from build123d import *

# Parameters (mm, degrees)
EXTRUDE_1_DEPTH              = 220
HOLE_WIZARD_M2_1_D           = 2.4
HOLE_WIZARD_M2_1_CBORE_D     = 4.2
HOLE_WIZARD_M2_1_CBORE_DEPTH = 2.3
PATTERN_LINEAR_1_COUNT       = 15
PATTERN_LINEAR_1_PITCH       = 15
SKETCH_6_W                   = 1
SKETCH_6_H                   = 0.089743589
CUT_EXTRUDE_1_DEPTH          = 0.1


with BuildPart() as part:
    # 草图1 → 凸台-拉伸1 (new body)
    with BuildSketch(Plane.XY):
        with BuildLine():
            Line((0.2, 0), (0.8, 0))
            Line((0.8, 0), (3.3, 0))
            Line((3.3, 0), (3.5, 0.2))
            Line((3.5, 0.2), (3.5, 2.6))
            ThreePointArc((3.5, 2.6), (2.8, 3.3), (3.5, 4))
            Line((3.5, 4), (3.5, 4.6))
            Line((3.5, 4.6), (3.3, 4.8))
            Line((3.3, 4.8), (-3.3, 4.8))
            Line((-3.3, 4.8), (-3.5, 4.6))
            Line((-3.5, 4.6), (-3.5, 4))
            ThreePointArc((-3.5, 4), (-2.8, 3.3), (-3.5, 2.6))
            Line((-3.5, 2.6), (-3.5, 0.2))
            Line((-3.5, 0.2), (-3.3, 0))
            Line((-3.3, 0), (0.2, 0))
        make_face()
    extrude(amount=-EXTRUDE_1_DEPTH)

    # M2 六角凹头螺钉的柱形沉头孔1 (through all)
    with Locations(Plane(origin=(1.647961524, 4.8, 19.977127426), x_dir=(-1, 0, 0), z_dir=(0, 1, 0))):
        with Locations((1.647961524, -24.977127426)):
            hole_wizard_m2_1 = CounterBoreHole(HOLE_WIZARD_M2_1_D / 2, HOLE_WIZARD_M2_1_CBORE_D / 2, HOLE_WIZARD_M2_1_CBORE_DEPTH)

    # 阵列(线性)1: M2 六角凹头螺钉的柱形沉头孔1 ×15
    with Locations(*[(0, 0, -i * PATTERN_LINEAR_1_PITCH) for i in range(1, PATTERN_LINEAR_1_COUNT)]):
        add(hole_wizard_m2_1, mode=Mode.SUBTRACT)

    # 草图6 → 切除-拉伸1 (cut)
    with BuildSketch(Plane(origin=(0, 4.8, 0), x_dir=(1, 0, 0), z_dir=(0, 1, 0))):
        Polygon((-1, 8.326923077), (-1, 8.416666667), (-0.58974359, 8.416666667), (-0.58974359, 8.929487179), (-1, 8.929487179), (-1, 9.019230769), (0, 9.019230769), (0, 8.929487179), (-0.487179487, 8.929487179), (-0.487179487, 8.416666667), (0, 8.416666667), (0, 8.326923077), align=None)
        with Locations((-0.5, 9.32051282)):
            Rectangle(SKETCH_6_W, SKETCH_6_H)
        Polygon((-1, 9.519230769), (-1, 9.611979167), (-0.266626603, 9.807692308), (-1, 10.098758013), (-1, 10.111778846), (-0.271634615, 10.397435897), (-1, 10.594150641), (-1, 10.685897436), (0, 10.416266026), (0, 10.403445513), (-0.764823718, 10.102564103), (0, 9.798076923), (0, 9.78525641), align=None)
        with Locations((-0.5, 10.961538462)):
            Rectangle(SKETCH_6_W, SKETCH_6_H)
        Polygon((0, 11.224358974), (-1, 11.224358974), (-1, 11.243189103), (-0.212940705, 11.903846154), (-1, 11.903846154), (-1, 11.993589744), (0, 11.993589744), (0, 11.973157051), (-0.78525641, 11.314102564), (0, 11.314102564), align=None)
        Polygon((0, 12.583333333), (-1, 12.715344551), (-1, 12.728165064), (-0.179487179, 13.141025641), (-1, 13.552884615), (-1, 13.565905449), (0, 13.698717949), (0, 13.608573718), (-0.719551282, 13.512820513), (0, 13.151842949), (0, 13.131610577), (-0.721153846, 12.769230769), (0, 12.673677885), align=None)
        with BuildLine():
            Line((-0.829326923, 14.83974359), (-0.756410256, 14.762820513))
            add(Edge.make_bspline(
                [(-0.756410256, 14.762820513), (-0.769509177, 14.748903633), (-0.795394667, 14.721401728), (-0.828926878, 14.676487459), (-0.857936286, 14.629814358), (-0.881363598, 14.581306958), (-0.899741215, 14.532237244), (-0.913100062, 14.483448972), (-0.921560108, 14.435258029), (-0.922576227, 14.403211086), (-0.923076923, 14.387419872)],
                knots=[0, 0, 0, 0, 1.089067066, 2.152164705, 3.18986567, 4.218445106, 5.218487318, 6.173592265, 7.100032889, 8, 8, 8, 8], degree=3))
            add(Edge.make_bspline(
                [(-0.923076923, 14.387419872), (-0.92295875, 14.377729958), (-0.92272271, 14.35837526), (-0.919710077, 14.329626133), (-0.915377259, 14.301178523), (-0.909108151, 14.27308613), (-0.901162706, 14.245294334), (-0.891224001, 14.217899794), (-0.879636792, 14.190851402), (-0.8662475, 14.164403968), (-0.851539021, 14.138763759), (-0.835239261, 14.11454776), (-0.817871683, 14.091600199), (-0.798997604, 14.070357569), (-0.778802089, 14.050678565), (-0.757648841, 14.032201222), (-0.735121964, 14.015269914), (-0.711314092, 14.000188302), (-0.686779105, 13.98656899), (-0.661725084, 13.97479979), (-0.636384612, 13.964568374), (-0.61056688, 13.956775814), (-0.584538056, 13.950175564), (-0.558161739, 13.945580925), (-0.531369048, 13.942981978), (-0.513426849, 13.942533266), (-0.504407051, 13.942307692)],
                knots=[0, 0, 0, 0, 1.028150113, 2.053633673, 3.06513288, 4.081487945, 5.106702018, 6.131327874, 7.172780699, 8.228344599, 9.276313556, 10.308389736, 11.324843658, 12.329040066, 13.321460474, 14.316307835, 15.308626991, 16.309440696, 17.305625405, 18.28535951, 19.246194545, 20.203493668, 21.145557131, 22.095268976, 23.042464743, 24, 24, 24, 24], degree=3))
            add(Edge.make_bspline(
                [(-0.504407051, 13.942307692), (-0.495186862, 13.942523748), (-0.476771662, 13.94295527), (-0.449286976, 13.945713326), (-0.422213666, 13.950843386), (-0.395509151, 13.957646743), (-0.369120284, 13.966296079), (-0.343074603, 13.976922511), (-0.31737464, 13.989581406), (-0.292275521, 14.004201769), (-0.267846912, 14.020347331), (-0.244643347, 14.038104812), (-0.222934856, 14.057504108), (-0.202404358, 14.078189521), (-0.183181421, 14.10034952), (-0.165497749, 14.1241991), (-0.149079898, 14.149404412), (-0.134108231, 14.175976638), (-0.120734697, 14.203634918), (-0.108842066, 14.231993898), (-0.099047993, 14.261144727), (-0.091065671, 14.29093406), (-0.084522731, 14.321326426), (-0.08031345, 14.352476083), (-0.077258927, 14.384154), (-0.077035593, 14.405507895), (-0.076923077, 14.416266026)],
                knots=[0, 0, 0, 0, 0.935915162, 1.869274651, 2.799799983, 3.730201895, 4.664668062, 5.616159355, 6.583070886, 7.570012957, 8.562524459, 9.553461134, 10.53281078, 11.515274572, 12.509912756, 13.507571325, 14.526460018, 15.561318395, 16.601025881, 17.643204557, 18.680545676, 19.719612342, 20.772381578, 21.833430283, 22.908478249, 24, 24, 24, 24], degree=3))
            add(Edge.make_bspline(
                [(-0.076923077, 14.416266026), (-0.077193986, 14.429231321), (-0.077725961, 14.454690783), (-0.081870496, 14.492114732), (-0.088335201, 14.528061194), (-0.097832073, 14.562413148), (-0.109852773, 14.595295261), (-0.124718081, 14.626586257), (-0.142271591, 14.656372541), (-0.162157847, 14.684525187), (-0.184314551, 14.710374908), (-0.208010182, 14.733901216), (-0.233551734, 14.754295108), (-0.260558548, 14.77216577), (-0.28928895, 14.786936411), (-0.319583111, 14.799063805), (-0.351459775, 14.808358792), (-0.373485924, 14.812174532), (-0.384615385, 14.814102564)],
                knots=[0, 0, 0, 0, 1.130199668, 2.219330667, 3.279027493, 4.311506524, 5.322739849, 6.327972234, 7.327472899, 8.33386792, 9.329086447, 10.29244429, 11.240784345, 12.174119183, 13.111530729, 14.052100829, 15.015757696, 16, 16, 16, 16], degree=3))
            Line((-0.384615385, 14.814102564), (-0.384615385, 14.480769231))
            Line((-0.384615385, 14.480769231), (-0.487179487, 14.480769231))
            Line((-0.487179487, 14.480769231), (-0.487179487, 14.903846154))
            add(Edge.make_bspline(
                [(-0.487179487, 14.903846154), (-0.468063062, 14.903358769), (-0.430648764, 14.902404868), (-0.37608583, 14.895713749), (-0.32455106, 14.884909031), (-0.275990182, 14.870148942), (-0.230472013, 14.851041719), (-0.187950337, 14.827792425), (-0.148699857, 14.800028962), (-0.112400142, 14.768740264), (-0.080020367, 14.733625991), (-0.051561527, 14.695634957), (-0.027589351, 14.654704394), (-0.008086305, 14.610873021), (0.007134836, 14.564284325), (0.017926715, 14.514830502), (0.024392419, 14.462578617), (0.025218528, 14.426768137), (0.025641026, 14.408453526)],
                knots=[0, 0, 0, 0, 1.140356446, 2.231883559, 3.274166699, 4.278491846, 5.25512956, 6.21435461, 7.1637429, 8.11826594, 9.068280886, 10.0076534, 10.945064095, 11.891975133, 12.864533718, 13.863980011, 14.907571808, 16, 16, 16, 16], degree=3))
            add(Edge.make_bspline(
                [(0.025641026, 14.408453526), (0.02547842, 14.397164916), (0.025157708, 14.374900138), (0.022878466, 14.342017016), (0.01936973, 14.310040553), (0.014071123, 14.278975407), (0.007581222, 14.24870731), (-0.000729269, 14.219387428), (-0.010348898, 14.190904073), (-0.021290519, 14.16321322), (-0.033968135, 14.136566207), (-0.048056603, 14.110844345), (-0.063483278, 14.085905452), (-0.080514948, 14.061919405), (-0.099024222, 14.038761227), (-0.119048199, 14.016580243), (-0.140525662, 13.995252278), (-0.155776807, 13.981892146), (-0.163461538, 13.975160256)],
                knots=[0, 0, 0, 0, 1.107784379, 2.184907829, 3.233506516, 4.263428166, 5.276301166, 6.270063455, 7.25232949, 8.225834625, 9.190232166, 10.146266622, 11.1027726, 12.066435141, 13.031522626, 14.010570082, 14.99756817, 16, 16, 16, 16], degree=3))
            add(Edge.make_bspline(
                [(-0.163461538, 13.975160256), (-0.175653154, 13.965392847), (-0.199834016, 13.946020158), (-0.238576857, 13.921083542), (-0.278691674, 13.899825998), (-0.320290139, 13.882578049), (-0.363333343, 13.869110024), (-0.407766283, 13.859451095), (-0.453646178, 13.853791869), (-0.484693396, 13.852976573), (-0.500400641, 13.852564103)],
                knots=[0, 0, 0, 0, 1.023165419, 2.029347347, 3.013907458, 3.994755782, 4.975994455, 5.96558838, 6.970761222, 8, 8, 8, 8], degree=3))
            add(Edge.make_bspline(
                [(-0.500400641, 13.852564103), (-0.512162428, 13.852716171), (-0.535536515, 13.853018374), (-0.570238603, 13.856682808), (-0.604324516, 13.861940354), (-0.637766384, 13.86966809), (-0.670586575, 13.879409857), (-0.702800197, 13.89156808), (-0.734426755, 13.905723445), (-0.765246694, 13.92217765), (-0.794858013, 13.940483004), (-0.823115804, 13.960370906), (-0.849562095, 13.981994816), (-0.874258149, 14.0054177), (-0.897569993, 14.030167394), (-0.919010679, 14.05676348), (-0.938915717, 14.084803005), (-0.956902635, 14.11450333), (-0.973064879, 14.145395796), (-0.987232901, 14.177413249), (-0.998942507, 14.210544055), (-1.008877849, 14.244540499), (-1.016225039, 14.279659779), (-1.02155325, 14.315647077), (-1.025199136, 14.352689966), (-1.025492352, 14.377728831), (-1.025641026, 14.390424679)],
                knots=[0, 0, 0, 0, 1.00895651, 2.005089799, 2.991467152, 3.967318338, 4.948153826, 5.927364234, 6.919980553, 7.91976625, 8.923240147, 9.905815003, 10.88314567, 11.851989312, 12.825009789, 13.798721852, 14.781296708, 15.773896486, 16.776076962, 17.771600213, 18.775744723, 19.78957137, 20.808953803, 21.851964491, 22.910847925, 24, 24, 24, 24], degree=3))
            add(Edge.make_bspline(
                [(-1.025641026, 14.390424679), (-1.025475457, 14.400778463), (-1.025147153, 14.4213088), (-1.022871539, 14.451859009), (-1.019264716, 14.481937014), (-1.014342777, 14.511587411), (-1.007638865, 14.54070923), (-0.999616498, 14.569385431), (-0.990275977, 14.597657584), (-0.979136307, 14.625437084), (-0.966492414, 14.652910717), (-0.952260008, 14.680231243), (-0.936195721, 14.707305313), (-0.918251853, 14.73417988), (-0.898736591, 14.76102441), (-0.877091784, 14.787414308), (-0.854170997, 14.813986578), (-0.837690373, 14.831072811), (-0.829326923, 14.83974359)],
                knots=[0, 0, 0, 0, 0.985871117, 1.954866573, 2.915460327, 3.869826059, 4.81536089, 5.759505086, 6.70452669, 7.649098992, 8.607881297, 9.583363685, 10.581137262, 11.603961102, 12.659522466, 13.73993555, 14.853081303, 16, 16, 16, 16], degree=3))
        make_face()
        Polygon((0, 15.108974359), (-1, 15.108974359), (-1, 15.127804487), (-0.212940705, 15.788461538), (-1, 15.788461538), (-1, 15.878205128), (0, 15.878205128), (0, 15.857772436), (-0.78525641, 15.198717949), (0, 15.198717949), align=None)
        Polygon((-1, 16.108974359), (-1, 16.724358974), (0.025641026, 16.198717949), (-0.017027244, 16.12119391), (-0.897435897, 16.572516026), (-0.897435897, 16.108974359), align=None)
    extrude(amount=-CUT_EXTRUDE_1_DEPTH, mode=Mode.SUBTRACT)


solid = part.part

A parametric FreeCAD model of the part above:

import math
import FreeCAD as App
import Part
import Sketcher
from FreeCAD import Vector
Q = App.Units.Quantity


def add_polygon(sketch, points):
    """Adds a closed chain of lines whose ends are joined by coincident constraints."""
    first, n = sketch.GeometryCount, len(points)
    for a, b in zip(points, points[1:] + points[:1]):
        sketch.addGeometry(Part.LineSegment(App.Vector(*a, 0), App.Vector(*b, 0)), False)
    for i in range(n):
        sketch.addConstraint(Sketcher.Constraint("Coincident", first + i, 2, first + (i + 1) % n, 1))

doc = App.newDocument("Part")
body = doc.addObject("PartDesign::Body", "Body")

# Sketch on XY plane
sketch1 = body.newObject("Sketcher::SketchObject", "Sketch")
sketch1.AttachmentSupport = (doc.getObject("XY_Plane"), [""])
sketch1.MapMode = "FlatFace"
sketch1.addGeometry([
    Part.LineSegment(Vector(3.3, 0, 0), Vector(3.5, 0.2, 0)),  # 0
    Part.LineSegment(Vector(3.5, 0.2, 0), Vector(3.5, 2.6, 0)),  # 1
    Part.ArcOfCircle(Part.Circle(Vector(3.5, 3.3, 0), Vector(0, 0, 1), 0.7), math.radians(90), math.radians(270)),  # 2
    Part.LineSegment(Vector(3.5, 4, 0), Vector(3.5, 4.6, 0)),  # 3
    Part.LineSegment(Vector(3.5, 4.6, 0), Vector(3.3, 4.8, 0)),  # 4
    Part.LineSegment(Vector(3.3, 4.8, 0), Vector(-3.3, 4.8, 0)),  # 5
    Part.LineSegment(Vector(-3.3, 4.8, 0), Vector(-3.5, 4.6, 0)),  # 6
    Part.LineSegment(Vector(-3.5, 4.6, 0), Vector(-3.5, 4, 0)),  # 7
    Part.ArcOfCircle(Part.Circle(Vector(-3.5, 3.3, 0), Vector(0, 0, 1), 0.7), math.radians(-90), math.radians(90)),  # 8
    Part.LineSegment(Vector(-3.5, 2.6, 0), Vector(-3.5, 0.2, 0)),  # 9
    Part.LineSegment(Vector(-3.5, 0.2, 0), Vector(-3.3, 0, 0)),  # 10
    Part.LineSegment(Vector(-3.3, 0, 0), Vector(3.3, 0, 0)),  # 11
], False)
sketch1.addConstraint([
    Sketcher.Constraint("Coincident", 0, 2, 1, 1),
    Sketcher.Constraint("Coincident", 1, 2, 2, 2),
    Sketcher.Constraint("Coincident", 2, 1, 3, 1),
    Sketcher.Constraint("Coincident", 3, 2, 4, 1),
    Sketcher.Constraint("Coincident", 4, 2, 5, 1),
    Sketcher.Constraint("Coincident", 5, 2, 6, 1),
    Sketcher.Constraint("Coincident", 6, 2, 7, 1),
    Sketcher.Constraint("Coincident", 7, 2, 8, 2),
    Sketcher.Constraint("Coincident", 8, 1, 9, 1),
    Sketcher.Constraint("Coincident", 9, 2, 10, 1),
    Sketcher.Constraint("Coincident", 10, 2, 11, 1),
    Sketcher.Constraint("Coincident", 11, 2, 0, 1),
    Sketcher.Constraint("Vertical", 1),
    Sketcher.Constraint("Vertical", 3),
    Sketcher.Constraint("Horizontal", 5),
    Sketcher.Constraint("Vertical", 7),
    Sketcher.Constraint("Vertical", 9),
    Sketcher.Constraint("Horizontal", 11),
    Sketcher.Constraint("Equal", 2, 8),
    Sketcher.Constraint("Symmetric", 10, 2, 11, 2, -1, 1),
    Sketcher.Constraint("Symmetric", 2, 3, 8, 3, -2),
    Sketcher.Constraint("Symmetric", 3, 2, 6, 2, -2),
    Sketcher.Constraint("Symmetric", 0, 2, 9, 2, -2),
    Sketcher.Constraint("Perpendicular", 0, 4),
    Sketcher.Constraint("Perpendicular", 4, 6),
    Sketcher.Constraint("Perpendicular", 6, 10),
    Sketcher.Constraint("Vertical", 2, 3, 0, 2),
    Sketcher.Constraint("Vertical", 1, 2, 2, 1),
    Sketcher.Constraint("Vertical", 5, 2, 10, 2),
    Sketcher.Constraint("Radius", 2, Q("0.7 mm")),
    Sketcher.Constraint("DistanceX", 5, 2, 5, 1, Q("6.6 mm")),
    Sketcher.Constraint("DistanceY", 1, 1, 1, 2, Q("2.4 mm")),
    Sketcher.Constraint("DistanceY", 3, 1, 3, 2, Q("0.6 mm")),
    Sketcher.Constraint("DistanceY", -1, 1, 2, 1, Q("4 mm")),
])
pad1 = body.newObject("PartDesign::Pad", "Pad")
pad1.Profile = sketch1
pad1.Length = 220
pad1.Reversed = True

# Sketch on XZ plane
sketch2 = body.newObject("Sketcher::SketchObject", "Sketch001")
sketch2.AttachmentSupport = (doc.getObject("XZ_Plane"), [""])
sketch2.MapMode = "FlatFace"
sketch2.AttachmentOffset = App.Placement(Vector(0, 0, -4.8), App.Rotation())
sketch2.addGeometry(Part.Circle(Vector(0, -5, 0), Vector(0, 0, 1), 1.2), False)
sketch2.addConstraint([
    Sketcher.Constraint("PointOnObject", 0, 3, -2),
    Sketcher.Constraint("Diameter", 0, Q("2.4 mm")),
    Sketcher.Constraint("DistanceY", 0, 3, -1, 1, Q("5 mm")),
])
doc.recompute()
hole = body.newObject("PartDesign::Hole", "Hole")
hole.Profile = sketch2
hole.ThreadType = "None"
hole.Diameter = 2.4
hole.DepthType = "ThroughAll"
hole.HoleCutType = "Counterbore"
hole.HoleCutDiameter = 4.2
hole.HoleCutDepth = 2.3
hole.Reversed = True
doc.recompute()

linearpattern = body.newObject("PartDesign::LinearPattern", "LinearPattern")
linearpattern.Originals = [hole]
linearpattern.Direction = (doc.getObject("Z_Axis"), [""])
linearpattern.Mode = "offset"
linearpattern.Offset = 15
linearpattern.Occurrences = 15
linearpattern.Reversed = True
body.Tip = linearpattern

# Sketch on XZ plane
sketch3 = body.newObject("Sketcher::SketchObject", "Sketch002")
sketch3.AttachmentSupport = (doc.getObject("XZ_Plane"), [""])
sketch3.MapMode = "FlatFace"
sketch3.AttachmentOffset = App.Placement(Vector(0, 0, -4.8), App.Rotation())
add_polygon(sketch3, [(-1, -8.416667), (-1, -8.326923), (0, -8.326923), (0, -8.416667), (-0.487179, -8.416667), (-0.487179, -8.929487), (0, -8.929487), (0, -9.019231), (-1, -9.019231), (-1, -8.929487), (-0.589744, -8.929487), (-0.589744, -8.416667)])  # lines 0-11
add_polygon(sketch3, [(-1, -9.365385), (-1, -9.275641), (0, -9.275641), (0, -9.365385)])  # lines 12-15
add_polygon(sketch3, [(-1, -9.611979), (-1, -9.519231), (0, -9.785256), (0, -9.798077), (-0.764824, -10.102564), (0, -10.403446), (0, -10.416266), (-1, -10.685897), (-1, -10.594151), (-0.271635, -10.397436), (-1, -10.111779), (-1, -10.098758), (-0.266627, -9.807692)])  # lines 16-28
add_polygon(sketch3, [(-1, -11.00641), (-1, -10.916667), (0, -10.916667), (0, -11.00641)])  # lines 29-32
add_polygon(sketch3, [(-1, -11.224359), (0, -11.224359), (0, -11.314103), (-0.785256, -11.314103), (0, -11.973157), (0, -11.99359), (-1, -11.99359), (-1, -11.903846), (-0.212941, -11.903846), (-1, -11.243189)])  # lines 33-42
add_polygon(sketch3, [(-1, -12.715345), (0, -12.583333), (0, -12.673678), (-0.721154, -12.769231), (0, -13.131611), (0, -13.151843), (-0.719551, -13.512821), (0, -13.608574), (0, -13.698718), (-1, -13.565905), (-1, -13.552885), (-0.179487, -13.141026), (-1, -12.728165)])  # lines 43-55
sketch3.addGeometry(Part.LineSegment(Vector(-0.75641, -14.762821, 0), Vector(-0.829327, -14.839744, 0)), False)  # 56
sketch3.addGeometry(Part.BSplineCurve([Vector(-1.025641, -14.390425, 0), Vector(-1.025475, -14.400778, 0), Vector(-1.025147, -14.421309, 0), Vector(-1.022872, -14.451859, 0), Vector(-1.019265, -14.481937, 0), Vector(-1.014343, -14.511587, 0), Vector(-1.007639, -14.540709, 0), Vector(-0.999616, -14.569385, 0), Vector(-0.990276, -14.597658, 0), Vector(-0.979136, -14.625437, 0), Vector(-0.966492, -14.652911, 0), Vector(-0.95226, -14.680231, 0), Vector(-0.936196, -14.707305, 0), Vector(-0.918252, -14.73418, 0), Vector(-0.898737, -14.761024, 0), Vector(-0.877092, -14.787414, 0), Vector(-0.854171, -14.813987, 0), Vector(-0.83769, -14.831073, 0), Vector(-0.829327, -14.839744, 0)], [4, 1, 1, 1, 1, 1, 1, 1, 1, 1, 1, 1, 1, 1, 1, 1, 4], [0, 0.985871117, 1.954866573, 2.915460327, 3.869826059, 4.81536089, 5.759505086, 6.70452669, 7.649098992, 8.607881297, 9.583363685, 10.581137262, 11.603961102, 12.659522466, 13.73993555, 14.853081303, 16], False, 3, [1, 1, 1, 1, 1, 1, 1, 1, 1, 1, 1, 1, 1, 1, 1, 1, 1, 1, 1], False), False)  # 57
sketch3.addGeometry(Part.BSplineCurve([Vector(-0.500401, -13.852564, 0), Vector(-0.512162, -13.852716, 0), Vector(-0.535537, -13.853018, 0), Vector(-0.570239, -13.856683, 0), Vector(-0.604325, -13.86194, 0), Vector(-0.637766, -13.869668, 0), Vector(-0.670587, -13.87941, 0), Vector(-0.7028, -13.891568, 0), Vector(-0.734427, -13.905723, 0), Vector(-0.765247, -13.922178, 0), Vector(-0.794858, -13.940483, 0), Vector(-0.823116, -13.960371, 0), Vector(-0.849562, -13.981995, 0), Vector(-0.874258, -14.005418, 0), Vector(-0.89757, -14.030167, 0), Vector(-0.919011, -14.056763, 0), Vector(-0.938916, -14.084803, 0), Vector(-0.956903, -14.114503, 0), Vector(-0.973065, -14.145396, 0), Vector(-0.987233, -14.177413, 0), Vector(-0.998943, -14.210544, 0), Vector(-1.008878, -14.24454, 0), Vector(-1.016225, -14.27966, 0), Vector(-1.021553, -14.315647, 0), Vector(-1.025199, -14.35269, 0), Vector(-1.025492, -14.377729, 0), Vector(-1.025641, -14.390425, 0)], [4, 1, 1, 1, 1, 1, 1, 1, 1, 1, 1, 1, 1, 1, 1, 1, 1, 1, 1, 1, 1, 1, 1, 1, 4], [0, 1.00895651, 2.005089799, 2.991467152, 3.967318338, 4.948153826, 5.927364234, 6.919980553, 7.91976625, 8.923240147, 9.905815003, 10.88314567, 11.851989312, 12.825009789, 13.798721852, 14.781296708, 15.773896486, 16.776076962, 17.771600213, 18.775744723, 19.78957137, 20.808953803, 21.851964491, 22.910847925, 24], False, 3, [1, 1, 1, 1, 1, 1, 1, 1, 1, 1, 1, 1, 1, 1, 1, 1, 1, 1, 1, 1, 1, 1, 1, 1, 1, 1, 1], False), False)  # 58
sketch3.addGeometry(Part.BSplineCurve([Vector(-0.163462, -13.97516, 0), Vector(-0.175653, -13.965393, 0), Vector(-0.199834, -13.94602, 0), Vector(-0.238577, -13.921084, 0), Vector(-0.278692, -13.899826, 0), Vector(-0.32029, -13.882578, 0), Vector(-0.363333, -13.86911, 0), Vector(-0.407766, -13.859451, 0), Vector(-0.453646, -13.853792, 0), Vector(-0.484693, -13.852977, 0), Vector(-0.500401, -13.852564, 0)], [4, 1, 1, 1, 1, 1, 1, 1, 4], [0, 1.023165419, 2.029347347, 3.013907458, 3.994755782, 4.975994455, 5.96558838, 6.970761222, 8], False, 3, [1, 1, 1, 1, 1, 1, 1, 1, 1, 1, 1], False), False)  # 59
sketch3.addGeometry(Part.BSplineCurve([Vector(0.025641, -14.408454, 0), Vector(0.025478, -14.397165, 0), Vector(0.025158, -14.3749, 0), Vector(0.022878, -14.342017, 0), Vector(0.01937, -14.310041, 0), Vector(0.014071, -14.278975, 0), Vector(0.007581, -14.248707, 0), Vector(-0.000729, -14.219387, 0), Vector(-0.010349, -14.190904, 0), Vector(-0.021291, -14.163213, 0), Vector(-0.033968, -14.136566, 0), Vector(-0.048057, -14.110844, 0), Vector(-0.063483, -14.085905, 0), Vector(-0.080515, -14.061919, 0), Vector(-0.099024, -14.038761, 0), Vector(-0.119048, -14.01658, 0), Vector(-0.140526, -13.995252, 0), Vector(-0.155777, -13.981892, 0), Vector(-0.163462, -13.97516, 0)], [4, 1, 1, 1, 1, 1, 1, 1, 1, 1, 1, 1, 1, 1, 1, 1, 4], [0, 1.107784379, 2.184907829, 3.233506516, 4.263428166, 5.276301166, 6.270063455, 7.25232949, 8.225834625, 9.190232166, 10.146266622, 11.1027726, 12.066435141, 13.031522626, 14.010570082, 14.99756817, 16], False, 3, [1, 1, 1, 1, 1, 1, 1, 1, 1, 1, 1, 1, 1, 1, 1, 1, 1, 1, 1], False), False)  # 60
sketch3.addGeometry(Part.BSplineCurve([Vector(-0.487179, -14.903846, 0), Vector(-0.468063, -14.903359, 0), Vector(-0.430649, -14.902405, 0), Vector(-0.376086, -14.895714, 0), Vector(-0.324551, -14.884909, 0), Vector(-0.27599, -14.870149, 0), Vector(-0.230472, -14.851042, 0), Vector(-0.18795, -14.827792, 0), Vector(-0.1487, -14.800029, 0), Vector(-0.1124, -14.76874, 0), Vector(-0.08002, -14.733626, 0), Vector(-0.051562, -14.695635, 0), Vector(-0.027589, -14.654704, 0), Vector(-0.008086, -14.610873, 0), Vector(0.007135, -14.564284, 0), Vector(0.017927, -14.514831, 0), Vector(0.024392, -14.462579, 0), Vector(0.025219, -14.426768, 0), Vector(0.025641, -14.408454, 0)], [4, 1, 1, 1, 1, 1, 1, 1, 1, 1, 1, 1, 1, 1, 1, 1, 4], [0, 1.140356446, 2.231883559, 3.274166699, 4.278491846, 5.25512956, 6.21435461, 7.1637429, 8.11826594, 9.068280886, 10.0076534, 10.945064095, 11.891975133, 12.864533718, 13.863980011, 14.907571808, 16], False, 3, [1, 1, 1, 1, 1, 1, 1, 1, 1, 1, 1, 1, 1, 1, 1, 1, 1, 1, 1], False), False)  # 61
sketch3.addGeometry(Part.LineSegment(Vector(-0.487179, -14.903846, 0), Vector(-0.487179, -14.480769, 0)), False)  # 62
sketch3.addGeometry(Part.LineSegment(Vector(-0.487179, -14.480769, 0), Vector(-0.384615, -14.480769, 0)), False)  # 63
sketch3.addGeometry(Part.LineSegment(Vector(-0.384615, -14.480769, 0), Vector(-0.384615, -14.814103, 0)), False)  # 64
sketch3.addGeometry(Part.BSplineCurve([Vector(-0.076923, -14.416266, 0), Vector(-0.077194, -14.429231, 0), Vector(-0.077726, -14.454691, 0), Vector(-0.08187, -14.492115, 0), Vector(-0.088335, -14.528061, 0), Vector(-0.097832, -14.562413, 0), Vector(-0.109853, -14.595295, 0), Vector(-0.124718, -14.626586, 0), Vector(-0.142272, -14.656373, 0), Vector(-0.162158, -14.684525, 0), Vector(-0.184315, -14.710375, 0), Vector(-0.20801, -14.733901, 0), Vector(-0.233552, -14.754295, 0), Vector(-0.260559, -14.772166, 0), Vector(-0.289289, -14.786936, 0), Vector(-0.319583, -14.799064, 0), Vector(-0.35146, -14.808359, 0), Vector(-0.373486, -14.812175, 0), Vector(-0.384615, -14.814103, 0)], [4, 1, 1, 1, 1, 1, 1, 1, 1, 1, 1, 1, 1, 1, 1, 1, 4], [0, 1.130199668, 2.219330667, 3.279027493, 4.311506524, 5.322739849, 6.327972234, 7.327472899, 8.33386792, 9.329086447, 10.29244429, 11.240784345, 12.174119183, 13.111530729, 14.052100829, 15.015757696, 16], False, 3, [1, 1, 1, 1, 1, 1, 1, 1, 1, 1, 1, 1, 1, 1, 1, 1, 1, 1, 1], False), False)  # 65
sketch3.addGeometry(Part.BSplineCurve([Vector(-0.504407, -13.942308, 0), Vector(-0.495187, -13.942524, 0), Vector(-0.476772, -13.942955, 0), Vector(-0.449287, -13.945713, 0), Vector(-0.422214, -13.950843, 0), Vector(-0.395509, -13.957647, 0), Vector(-0.36912, -13.966296, 0), Vector(-0.343075, -13.976923, 0), Vector(-0.317375, -13.989581, 0), Vector(-0.292276, -14.004202, 0), Vector(-0.267847, -14.020347, 0), Vector(-0.244643, -14.038105, 0), Vector(-0.222935, -14.057504, 0), Vector(-0.202404, -14.07819, 0), Vector(-0.183181, -14.10035, 0), Vector(-0.165498, -14.124199, 0), Vector(-0.14908, -14.149404, 0), Vector(-0.134108, -14.175977, 0), Vector(-0.120735, -14.203635, 0), Vector(-0.108842, -14.231994, 0), Vector(-0.099048, -14.261145, 0), Vector(-0.091066, -14.290934, 0), Vector(-0.084523, -14.321326, 0), Vector(-0.080313, -14.352476, 0), Vector(-0.077259, -14.384154, 0), Vector(-0.077036, -14.405508, 0), Vector(-0.076923, -14.416266, 0)], [4, 1, 1, 1, 1, 1, 1, 1, 1, 1, 1, 1, 1, 1, 1, 1, 1, 1, 1, 1, 1, 1, 1, 1, 4], [0, 0.935915162, 1.869274651, 2.799799983, 3.730201895, 4.664668062, 5.616159355, 6.583070886, 7.570012957, 8.562524459, 9.553461134, 10.53281078, 11.515274572, 12.509912756, 13.507571325, 14.526460018, 15.561318395, 16.601025881, 17.643204557, 18.680545676, 19.719612342, 20.772381578, 21.833430283, 22.908478249, 24], False, 3, [1, 1, 1, 1, 1, 1, 1, 1, 1, 1, 1, 1, 1, 1, 1, 1, 1, 1, 1, 1, 1, 1, 1, 1, 1, 1, 1], False), False)  # 66
sketch3.addGeometry(Part.BSplineCurve([Vector(-0.923077, -14.38742, 0), Vector(-0.922959, -14.37773, 0), Vector(-0.922723, -14.358375, 0), Vector(-0.91971, -14.329626, 0), Vector(-0.915377, -14.301179, 0), Vector(-0.909108, -14.273086, 0), Vector(-0.901163, -14.245294, 0), Vector(-0.891224, -14.2179, 0), Vector(-0.879637, -14.190851, 0), Vector(-0.866247, -14.164404, 0), Vector(-0.851539, -14.138764, 0), Vector(-0.835239, -14.114548, 0), Vector(-0.817872, -14.0916, 0), Vector(-0.798998, -14.070358, 0), Vector(-0.778802, -14.050679, 0), Vector(-0.757649, -14.032201, 0), Vector(-0.735122, -14.01527, 0), Vector(-0.711314, -14.000188, 0), Vector(-0.686779, -13.986569, 0), Vector(-0.661725, -13.9748, 0), Vector(-0.636385, -13.964568, 0), Vector(-0.610567, -13.956776, 0), Vector(-0.584538, -13.950176, 0), Vector(-0.558162, -13.945581, 0), Vector(-0.531369, -13.942982, 0), Vector(-0.513427, -13.942533, 0), Vector(-0.504407, -13.942308, 0)], [4, 1, 1, 1, 1, 1, 1, 1, 1, 1, 1, 1, 1, 1, 1, 1, 1, 1, 1, 1, 1, 1, 1, 1, 4], [0, 1.028150113, 2.053633673, 3.06513288, 4.081487945, 5.106702018, 6.131327874, 7.172780699, 8.228344599, 9.276313556, 10.308389736, 11.324843658, 12.329040066, 13.321460474, 14.316307835, 15.308626991, 16.309440696, 17.305625405, 18.28535951, 19.246194545, 20.203493668, 21.145557131, 22.095268976, 23.042464743, 24], False, 3, [1, 1, 1, 1, 1, 1, 1, 1, 1, 1, 1, 1, 1, 1, 1, 1, 1, 1, 1, 1, 1, 1, 1, 1, 1, 1, 1], False), False)  # 67
sketch3.addGeometry(Part.BSplineCurve([Vector(-0.75641, -14.762821, 0), Vector(-0.769509, -14.748904, 0), Vector(-0.795395, -14.721402, 0), Vector(-0.828927, -14.676487, 0), Vector(-0.857936, -14.629814, 0), Vector(-0.881364, -14.581307, 0), Vector(-0.899741, -14.532237, 0), Vector(-0.9131, -14.483449, 0), Vector(-0.92156, -14.435258, 0), Vector(-0.922576, -14.403211, 0), Vector(-0.923077, -14.38742, 0)], [4, 1, 1, 1, 1, 1, 1, 1, 4], [0, 1.089067066, 2.152164705, 3.18986567, 4.218445106, 5.218487318, 6.173592265, 7.100032889, 8], False, 3, [1, 1, 1, 1, 1, 1, 1, 1, 1, 1, 1], False), False)  # 68
add_polygon(sketch3, [(-1, -15.108974), (0, -15.108974), (0, -15.198718), (-0.785256, -15.198718), (0, -15.857772), (0, -15.878205), (-1, -15.878205), (-1, -15.788462), (-0.212941, -15.788462), (-1, -15.127804)])  # lines 69-78
add_polygon(sketch3, [(-1, -16.724359), (-1, -16.108974), (-0.897436, -16.108974), (-0.897436, -16.572516), (-0.017027, -16.121194), (0.025641, -16.198718)])  # lines 79-84
sketch3.addConstraint([
    Sketcher.Constraint("Block", 57),
    Sketcher.Constraint("Block", 58),
    Sketcher.Constraint("Block", 59),
    Sketcher.Constraint("Block", 60),
    Sketcher.Constraint("Block", 61),
    Sketcher.Constraint("Block", 65),
    Sketcher.Constraint("Block", 66),
    Sketcher.Constraint("Block", 67),
    Sketcher.Constraint("Block", 68),
    Sketcher.Constraint("Coincident", 56, 2, 57, 2),
    Sketcher.Constraint("Coincident", 61, 1, 62, 1),
    Sketcher.Constraint("Coincident", 62, 2, 63, 1),
    Sketcher.Constraint("Coincident", 63, 2, 64, 1),
    Sketcher.Constraint("Coincident", 64, 2, 65, 2),
    Sketcher.Constraint("Coincident", 68, 1, 56, 1),
    Sketcher.Constraint("Vertical", 0),
    Sketcher.Constraint("Horizontal", 1),
    Sketcher.Constraint("Vertical", 2),
    Sketcher.Constraint("Horizontal", 3),
    Sketcher.Constraint("Vertical", 4),
    Sketcher.Constraint("Horizontal", 5),
    Sketcher.Constraint("Vertical", 6),
    Sketcher.Constraint("Horizontal", 7),
    Sketcher.Constraint("Vertical", 8),
    Sketcher.Constraint("Horizontal", 9),
    Sketcher.Constraint("Vertical", 10),
    Sketcher.Constraint("Horizontal", 11),
    Sketcher.Constraint("Vertical", 12),
    Sketcher.Constraint("Horizontal", 13),
    Sketcher.Constraint("Vertical", 14),
    Sketcher.Constraint("Horizontal", 15),
    Sketcher.Constraint("Vertical", 16),
    Sketcher.Constraint("Vertical", 18),
    Sketcher.Constraint("Vertical", 21),
    Sketcher.Constraint("Vertical", 23),
    Sketcher.Constraint("Vertical", 26),
    Sketcher.Constraint("Vertical", 29),
    Sketcher.Constraint("Horizontal", 30),
    Sketcher.Constraint("Vertical", 31),
    Sketcher.Constraint("Horizontal", 32),
    Sketcher.Constraint("Horizontal", 33),
    Sketcher.Constraint("Vertical", 34),
    Sketcher.Constraint("Horizontal", 35),
    Sketcher.Constraint("Vertical", 37),
    Sketcher.Constraint("Horizontal", 38),
    Sketcher.Constraint("Vertical", 39),
    Sketcher.Constraint("Horizontal", 40),
    Sketcher.Constraint("Vertical", 42),
    Sketcher.Constraint("Vertical", 44),
    Sketcher.Constraint("Vertical", 47),
    Sketcher.Constraint("Vertical", 50),
    Sketcher.Constraint("Vertical", 52),
    Sketcher.Constraint("Vertical", 55),
    Sketcher.Constraint("Vertical", 62),
    Sketcher.Constraint("Horizontal", 63),
    Sketcher.Constraint("Vertical", 64),
    Sketcher.Constraint("Horizontal", 69),
    Sketcher.Constraint("Vertical", 70),
    Sketcher.Constraint("Horizontal", 71),
    Sketcher.Constraint("Vertical", 73),
    Sketcher.Constraint("Horizontal", 74),
    Sketcher.Constraint("Vertical", 75),
    Sketcher.Constraint("Horizontal", 76),
    Sketcher.Constraint("Vertical", 78),
    Sketcher.Constraint("Vertical", 79),
    Sketcher.Constraint("Horizontal", 80),
    Sketcher.Constraint("Vertical", 81),
    Sketcher.Constraint("PointOnObject", 1, 2, -2),
    Sketcher.Constraint("PointOnObject", 5, 2, -2),
    Sketcher.Constraint("PointOnObject", 13, 2, -2),
    Sketcher.Constraint("PointOnObject", 17, 2, -2),
    Sketcher.Constraint("PointOnObject", 20, 2, -2),
    Sketcher.Constraint("PointOnObject", 30, 2, -2),
    Sketcher.Constraint("PointOnObject", 33, 2, -2),
    Sketcher.Constraint("PointOnObject", 36, 2, -2),
    Sketcher.Constraint("PointOnObject", 43, 2, -2),
    Sketcher.Constraint("PointOnObject", 46, 2, -2),
    Sketcher.Constraint("PointOnObject", 49, 2, -2),
    Sketcher.Constraint("PointOnObject", 69, 2, -2),
    Sketcher.Constraint("PointOnObject", 72, 2, -2),
    Sketcher.Constraint("Parallel", 36, 72),
    Sketcher.Constraint("Parallel", 41, 77),
    Sketcher.Constraint("Horizontal", 5, 2, 8, 2),
    Sketcher.Constraint("Horizontal", 3, 2, 10, 2),
    Sketcher.Constraint("Vertical", 0, 2, 7, 2),
    Sketcher.Constraint("Vertical", 11, 2, 12, 2),
    Sketcher.Constraint("Vertical", 15, 2, 16, 2),
    Sketcher.Constraint("Vertical", 16, 2, 22, 2),
    Sketcher.Constraint("Vertical", 23, 2, 25, 2),
    Sketcher.Constraint("Vertical", 28, 2, 29, 2),
    Sketcher.Constraint("Vertical", 32, 2, 38, 2),
    Sketcher.Constraint("Vertical", 39, 2, 41, 2),
    Sketcher.Constraint("Vertical", 42, 2, 51, 2),
    Sketcher.Constraint("Vertical", 52, 2, 54, 2),
    Sketcher.Constraint("Vertical", 4, 2, 62, 2),
    Sketcher.Constraint("Vertical", 35, 2, 71, 2),
    Sketcher.Constraint("Vertical", 55, 2, 74, 2),
    Sketcher.Constraint("Vertical", 40, 2, 76, 2),
    Sketcher.Constraint("Vertical", 75, 2, 77, 2),
    Sketcher.Constraint("Vertical", 78, 2, 79, 2),
    Sketcher.Constraint("Equal", 63, 80),
    Sketcher.Constraint("Equal", 2, 6),
    Sketcher.Constraint("Equal", 8, 12),
    Sketcher.Constraint("Equal", 18, 21),
    Sketcher.Constraint("Equal", 14, 29),
    Sketcher.Constraint("Equal", 31, 34),
    Sketcher.Constraint("Equal", 34, 39),
    Sketcher.Constraint("Equal", 26, 52),
    Sketcher.Constraint("Equal", 21, 55),
    Sketcher.Constraint("Equal", 39, 70),
    Sketcher.Constraint("Equal", 37, 73),
    Sketcher.Constraint("Equal", 70, 75),
    Sketcher.Constraint("DistanceX", 1, 1, 1, 2, Q("1 mm")),
    Sketcher.Constraint("Angle", 49, Q("-7.580015 deg")),
    Sketcher.Constraint("DistanceX", 40, 1, 40, 2, Q("0.787059 mm")),
    Sketcher.Constraint("DistanceY", 4, 2, 4, 1, Q("0.512821 mm")),
    Sketcher.Constraint("DistanceY", 16, 1, 16, 2, Q("0.092748 mm")),
    Sketcher.Constraint("DistanceY", 18, 2, 18, 1, Q("0.012821 mm")),
    Sketcher.Constraint("DistanceY", 26, 1, 26, 2, Q("0.013021 mm")),
    Sketcher.Constraint("DistanceY", 42, 1, 42, 2, Q("0.01883 mm")),
    Sketcher.Constraint("DistanceY", 81, 2, 81, 1, Q("0.463542 mm")),
    Sketcher.Constraint("Distance", 17, Q("1.03478 mm")),
    Sketcher.Constraint("Distance", 20, Q("0.821879 mm")),
    Sketcher.Constraint("Distance", 24, Q("0.754462 mm")),
    Sketcher.Constraint("Distance", 25, Q("0.782378 mm")),
    Sketcher.Constraint("Distance", 28, Q("0.759039 mm")),
    Sketcher.Constraint("Distance", 48, Q("0.805021 mm")),
    Sketcher.Constraint("Distance", 51, Q("1.008781 mm")),
    Sketcher.Constraint("Distance", 53, Q("0.918079 mm")),
    Sketcher.Constraint("Distance", 54, Q("0.918529 mm")),
    Sketcher.Constraint("Distance", 82, Q("0.989349 mm")),
    Sketcher.Constraint("Distance", 83, Q("0.08849 mm")),
    Sketcher.Constraint("DistanceX", 9, 1, 9, 2, Q("0.410256 mm")),
    Sketcher.Constraint("DistanceX", 35, 2, 35, 1, Q("0.785256 mm")),
    Sketcher.Constraint("DistanceY", 0, 1, 0, 2, Q("0.089744 mm")),
    Sketcher.Constraint("DistanceY", 23, 1, 23, 2, Q("0.091747 mm")),
    Sketcher.Constraint("DistanceY", 37, 2, 37, 1, Q("0.020433 mm")),
    Sketcher.Constraint("DistanceY", 44, 2, 44, 1, Q("0.090345 mm")),
    Sketcher.Constraint("DistanceY", 47, 2, 47, 1, Q("0.020232 mm")),
    Sketcher.Constraint("DistanceY", 50, 2, 50, 1, Q("0.090144 mm")),
    Sketcher.Constraint("DistanceY", 62, 1, 62, 2, Q("0.423077 mm")),
    Sketcher.Constraint("DistanceY", 79, 1, 79, 2, Q("0.615385 mm")),
    Sketcher.Constraint("DistanceY", 6, 2, -1, 1, Q("9.019231 mm")),
    Sketcher.Constraint("DistanceY", 12, 2, -1, 1, Q("9.275641 mm")),
    Sketcher.Constraint("DistanceY", 16, 2, -1, 1, Q("9.519231 mm")),
    Sketcher.Constraint("DistanceY", 23, 2, -1, 1, Q("10.594151 mm")),
    Sketcher.Constraint("DistanceY", 25, 2, -1, 1, Q("10.111779 mm")),
    Sketcher.Constraint("DistanceY", 31, 2, -1, 1, Q("11.00641 mm")),
    Sketcher.Constraint("DistanceY", 33, 2, -1, 1, Q("11.224359 mm")),
    Sketcher.Constraint("DistanceY", 37, 2, -1, 1, Q("11.99359 mm")),
    Sketcher.Constraint("DistanceY", 45, 2, -1, 1, Q("12.769231 mm")),
    Sketcher.Constraint("DistanceY", 46, 2, -1, 1, Q("13.131611 mm")),
    Sketcher.Constraint("DistanceX", 48, 2, -1, 1, Q("0.719551 mm")),
    Sketcher.Constraint("DistanceY", 75, 2, -1, 1, Q("15.788462 mm")),
    Sketcher.Constraint("DistanceX", -1, 1, 83, 2, Q("0.025641 mm")),
    Sketcher.Constraint("DistanceY", 84, 2, -1, 1, Q("16.724359 mm")),
    Sketcher.Constraint("Distance", 19, Q("0.823206 mm")),
    Sketcher.Constraint("Distance", 22, Q("1.035713 mm")),
    Sketcher.Constraint("Distance", 27, Q("0.789022 mm")),
    Sketcher.Constraint("Distance", 43, Q("1.008676 mm")),
    Sketcher.Constraint("Distance", 45, Q("0.727457 mm")),
    Sketcher.Constraint("Distance", 46, Q("0.807082 mm")),
    Sketcher.Constraint("Distance", 84, Q("1.152492 mm")),
])
pocket1 = body.newObject("PartDesign::Pocket", "Pocket")
pocket1.Profile = sketch3
pocket1.Length = 0.1
pocket1.Reversed = True

doc.recompute()
